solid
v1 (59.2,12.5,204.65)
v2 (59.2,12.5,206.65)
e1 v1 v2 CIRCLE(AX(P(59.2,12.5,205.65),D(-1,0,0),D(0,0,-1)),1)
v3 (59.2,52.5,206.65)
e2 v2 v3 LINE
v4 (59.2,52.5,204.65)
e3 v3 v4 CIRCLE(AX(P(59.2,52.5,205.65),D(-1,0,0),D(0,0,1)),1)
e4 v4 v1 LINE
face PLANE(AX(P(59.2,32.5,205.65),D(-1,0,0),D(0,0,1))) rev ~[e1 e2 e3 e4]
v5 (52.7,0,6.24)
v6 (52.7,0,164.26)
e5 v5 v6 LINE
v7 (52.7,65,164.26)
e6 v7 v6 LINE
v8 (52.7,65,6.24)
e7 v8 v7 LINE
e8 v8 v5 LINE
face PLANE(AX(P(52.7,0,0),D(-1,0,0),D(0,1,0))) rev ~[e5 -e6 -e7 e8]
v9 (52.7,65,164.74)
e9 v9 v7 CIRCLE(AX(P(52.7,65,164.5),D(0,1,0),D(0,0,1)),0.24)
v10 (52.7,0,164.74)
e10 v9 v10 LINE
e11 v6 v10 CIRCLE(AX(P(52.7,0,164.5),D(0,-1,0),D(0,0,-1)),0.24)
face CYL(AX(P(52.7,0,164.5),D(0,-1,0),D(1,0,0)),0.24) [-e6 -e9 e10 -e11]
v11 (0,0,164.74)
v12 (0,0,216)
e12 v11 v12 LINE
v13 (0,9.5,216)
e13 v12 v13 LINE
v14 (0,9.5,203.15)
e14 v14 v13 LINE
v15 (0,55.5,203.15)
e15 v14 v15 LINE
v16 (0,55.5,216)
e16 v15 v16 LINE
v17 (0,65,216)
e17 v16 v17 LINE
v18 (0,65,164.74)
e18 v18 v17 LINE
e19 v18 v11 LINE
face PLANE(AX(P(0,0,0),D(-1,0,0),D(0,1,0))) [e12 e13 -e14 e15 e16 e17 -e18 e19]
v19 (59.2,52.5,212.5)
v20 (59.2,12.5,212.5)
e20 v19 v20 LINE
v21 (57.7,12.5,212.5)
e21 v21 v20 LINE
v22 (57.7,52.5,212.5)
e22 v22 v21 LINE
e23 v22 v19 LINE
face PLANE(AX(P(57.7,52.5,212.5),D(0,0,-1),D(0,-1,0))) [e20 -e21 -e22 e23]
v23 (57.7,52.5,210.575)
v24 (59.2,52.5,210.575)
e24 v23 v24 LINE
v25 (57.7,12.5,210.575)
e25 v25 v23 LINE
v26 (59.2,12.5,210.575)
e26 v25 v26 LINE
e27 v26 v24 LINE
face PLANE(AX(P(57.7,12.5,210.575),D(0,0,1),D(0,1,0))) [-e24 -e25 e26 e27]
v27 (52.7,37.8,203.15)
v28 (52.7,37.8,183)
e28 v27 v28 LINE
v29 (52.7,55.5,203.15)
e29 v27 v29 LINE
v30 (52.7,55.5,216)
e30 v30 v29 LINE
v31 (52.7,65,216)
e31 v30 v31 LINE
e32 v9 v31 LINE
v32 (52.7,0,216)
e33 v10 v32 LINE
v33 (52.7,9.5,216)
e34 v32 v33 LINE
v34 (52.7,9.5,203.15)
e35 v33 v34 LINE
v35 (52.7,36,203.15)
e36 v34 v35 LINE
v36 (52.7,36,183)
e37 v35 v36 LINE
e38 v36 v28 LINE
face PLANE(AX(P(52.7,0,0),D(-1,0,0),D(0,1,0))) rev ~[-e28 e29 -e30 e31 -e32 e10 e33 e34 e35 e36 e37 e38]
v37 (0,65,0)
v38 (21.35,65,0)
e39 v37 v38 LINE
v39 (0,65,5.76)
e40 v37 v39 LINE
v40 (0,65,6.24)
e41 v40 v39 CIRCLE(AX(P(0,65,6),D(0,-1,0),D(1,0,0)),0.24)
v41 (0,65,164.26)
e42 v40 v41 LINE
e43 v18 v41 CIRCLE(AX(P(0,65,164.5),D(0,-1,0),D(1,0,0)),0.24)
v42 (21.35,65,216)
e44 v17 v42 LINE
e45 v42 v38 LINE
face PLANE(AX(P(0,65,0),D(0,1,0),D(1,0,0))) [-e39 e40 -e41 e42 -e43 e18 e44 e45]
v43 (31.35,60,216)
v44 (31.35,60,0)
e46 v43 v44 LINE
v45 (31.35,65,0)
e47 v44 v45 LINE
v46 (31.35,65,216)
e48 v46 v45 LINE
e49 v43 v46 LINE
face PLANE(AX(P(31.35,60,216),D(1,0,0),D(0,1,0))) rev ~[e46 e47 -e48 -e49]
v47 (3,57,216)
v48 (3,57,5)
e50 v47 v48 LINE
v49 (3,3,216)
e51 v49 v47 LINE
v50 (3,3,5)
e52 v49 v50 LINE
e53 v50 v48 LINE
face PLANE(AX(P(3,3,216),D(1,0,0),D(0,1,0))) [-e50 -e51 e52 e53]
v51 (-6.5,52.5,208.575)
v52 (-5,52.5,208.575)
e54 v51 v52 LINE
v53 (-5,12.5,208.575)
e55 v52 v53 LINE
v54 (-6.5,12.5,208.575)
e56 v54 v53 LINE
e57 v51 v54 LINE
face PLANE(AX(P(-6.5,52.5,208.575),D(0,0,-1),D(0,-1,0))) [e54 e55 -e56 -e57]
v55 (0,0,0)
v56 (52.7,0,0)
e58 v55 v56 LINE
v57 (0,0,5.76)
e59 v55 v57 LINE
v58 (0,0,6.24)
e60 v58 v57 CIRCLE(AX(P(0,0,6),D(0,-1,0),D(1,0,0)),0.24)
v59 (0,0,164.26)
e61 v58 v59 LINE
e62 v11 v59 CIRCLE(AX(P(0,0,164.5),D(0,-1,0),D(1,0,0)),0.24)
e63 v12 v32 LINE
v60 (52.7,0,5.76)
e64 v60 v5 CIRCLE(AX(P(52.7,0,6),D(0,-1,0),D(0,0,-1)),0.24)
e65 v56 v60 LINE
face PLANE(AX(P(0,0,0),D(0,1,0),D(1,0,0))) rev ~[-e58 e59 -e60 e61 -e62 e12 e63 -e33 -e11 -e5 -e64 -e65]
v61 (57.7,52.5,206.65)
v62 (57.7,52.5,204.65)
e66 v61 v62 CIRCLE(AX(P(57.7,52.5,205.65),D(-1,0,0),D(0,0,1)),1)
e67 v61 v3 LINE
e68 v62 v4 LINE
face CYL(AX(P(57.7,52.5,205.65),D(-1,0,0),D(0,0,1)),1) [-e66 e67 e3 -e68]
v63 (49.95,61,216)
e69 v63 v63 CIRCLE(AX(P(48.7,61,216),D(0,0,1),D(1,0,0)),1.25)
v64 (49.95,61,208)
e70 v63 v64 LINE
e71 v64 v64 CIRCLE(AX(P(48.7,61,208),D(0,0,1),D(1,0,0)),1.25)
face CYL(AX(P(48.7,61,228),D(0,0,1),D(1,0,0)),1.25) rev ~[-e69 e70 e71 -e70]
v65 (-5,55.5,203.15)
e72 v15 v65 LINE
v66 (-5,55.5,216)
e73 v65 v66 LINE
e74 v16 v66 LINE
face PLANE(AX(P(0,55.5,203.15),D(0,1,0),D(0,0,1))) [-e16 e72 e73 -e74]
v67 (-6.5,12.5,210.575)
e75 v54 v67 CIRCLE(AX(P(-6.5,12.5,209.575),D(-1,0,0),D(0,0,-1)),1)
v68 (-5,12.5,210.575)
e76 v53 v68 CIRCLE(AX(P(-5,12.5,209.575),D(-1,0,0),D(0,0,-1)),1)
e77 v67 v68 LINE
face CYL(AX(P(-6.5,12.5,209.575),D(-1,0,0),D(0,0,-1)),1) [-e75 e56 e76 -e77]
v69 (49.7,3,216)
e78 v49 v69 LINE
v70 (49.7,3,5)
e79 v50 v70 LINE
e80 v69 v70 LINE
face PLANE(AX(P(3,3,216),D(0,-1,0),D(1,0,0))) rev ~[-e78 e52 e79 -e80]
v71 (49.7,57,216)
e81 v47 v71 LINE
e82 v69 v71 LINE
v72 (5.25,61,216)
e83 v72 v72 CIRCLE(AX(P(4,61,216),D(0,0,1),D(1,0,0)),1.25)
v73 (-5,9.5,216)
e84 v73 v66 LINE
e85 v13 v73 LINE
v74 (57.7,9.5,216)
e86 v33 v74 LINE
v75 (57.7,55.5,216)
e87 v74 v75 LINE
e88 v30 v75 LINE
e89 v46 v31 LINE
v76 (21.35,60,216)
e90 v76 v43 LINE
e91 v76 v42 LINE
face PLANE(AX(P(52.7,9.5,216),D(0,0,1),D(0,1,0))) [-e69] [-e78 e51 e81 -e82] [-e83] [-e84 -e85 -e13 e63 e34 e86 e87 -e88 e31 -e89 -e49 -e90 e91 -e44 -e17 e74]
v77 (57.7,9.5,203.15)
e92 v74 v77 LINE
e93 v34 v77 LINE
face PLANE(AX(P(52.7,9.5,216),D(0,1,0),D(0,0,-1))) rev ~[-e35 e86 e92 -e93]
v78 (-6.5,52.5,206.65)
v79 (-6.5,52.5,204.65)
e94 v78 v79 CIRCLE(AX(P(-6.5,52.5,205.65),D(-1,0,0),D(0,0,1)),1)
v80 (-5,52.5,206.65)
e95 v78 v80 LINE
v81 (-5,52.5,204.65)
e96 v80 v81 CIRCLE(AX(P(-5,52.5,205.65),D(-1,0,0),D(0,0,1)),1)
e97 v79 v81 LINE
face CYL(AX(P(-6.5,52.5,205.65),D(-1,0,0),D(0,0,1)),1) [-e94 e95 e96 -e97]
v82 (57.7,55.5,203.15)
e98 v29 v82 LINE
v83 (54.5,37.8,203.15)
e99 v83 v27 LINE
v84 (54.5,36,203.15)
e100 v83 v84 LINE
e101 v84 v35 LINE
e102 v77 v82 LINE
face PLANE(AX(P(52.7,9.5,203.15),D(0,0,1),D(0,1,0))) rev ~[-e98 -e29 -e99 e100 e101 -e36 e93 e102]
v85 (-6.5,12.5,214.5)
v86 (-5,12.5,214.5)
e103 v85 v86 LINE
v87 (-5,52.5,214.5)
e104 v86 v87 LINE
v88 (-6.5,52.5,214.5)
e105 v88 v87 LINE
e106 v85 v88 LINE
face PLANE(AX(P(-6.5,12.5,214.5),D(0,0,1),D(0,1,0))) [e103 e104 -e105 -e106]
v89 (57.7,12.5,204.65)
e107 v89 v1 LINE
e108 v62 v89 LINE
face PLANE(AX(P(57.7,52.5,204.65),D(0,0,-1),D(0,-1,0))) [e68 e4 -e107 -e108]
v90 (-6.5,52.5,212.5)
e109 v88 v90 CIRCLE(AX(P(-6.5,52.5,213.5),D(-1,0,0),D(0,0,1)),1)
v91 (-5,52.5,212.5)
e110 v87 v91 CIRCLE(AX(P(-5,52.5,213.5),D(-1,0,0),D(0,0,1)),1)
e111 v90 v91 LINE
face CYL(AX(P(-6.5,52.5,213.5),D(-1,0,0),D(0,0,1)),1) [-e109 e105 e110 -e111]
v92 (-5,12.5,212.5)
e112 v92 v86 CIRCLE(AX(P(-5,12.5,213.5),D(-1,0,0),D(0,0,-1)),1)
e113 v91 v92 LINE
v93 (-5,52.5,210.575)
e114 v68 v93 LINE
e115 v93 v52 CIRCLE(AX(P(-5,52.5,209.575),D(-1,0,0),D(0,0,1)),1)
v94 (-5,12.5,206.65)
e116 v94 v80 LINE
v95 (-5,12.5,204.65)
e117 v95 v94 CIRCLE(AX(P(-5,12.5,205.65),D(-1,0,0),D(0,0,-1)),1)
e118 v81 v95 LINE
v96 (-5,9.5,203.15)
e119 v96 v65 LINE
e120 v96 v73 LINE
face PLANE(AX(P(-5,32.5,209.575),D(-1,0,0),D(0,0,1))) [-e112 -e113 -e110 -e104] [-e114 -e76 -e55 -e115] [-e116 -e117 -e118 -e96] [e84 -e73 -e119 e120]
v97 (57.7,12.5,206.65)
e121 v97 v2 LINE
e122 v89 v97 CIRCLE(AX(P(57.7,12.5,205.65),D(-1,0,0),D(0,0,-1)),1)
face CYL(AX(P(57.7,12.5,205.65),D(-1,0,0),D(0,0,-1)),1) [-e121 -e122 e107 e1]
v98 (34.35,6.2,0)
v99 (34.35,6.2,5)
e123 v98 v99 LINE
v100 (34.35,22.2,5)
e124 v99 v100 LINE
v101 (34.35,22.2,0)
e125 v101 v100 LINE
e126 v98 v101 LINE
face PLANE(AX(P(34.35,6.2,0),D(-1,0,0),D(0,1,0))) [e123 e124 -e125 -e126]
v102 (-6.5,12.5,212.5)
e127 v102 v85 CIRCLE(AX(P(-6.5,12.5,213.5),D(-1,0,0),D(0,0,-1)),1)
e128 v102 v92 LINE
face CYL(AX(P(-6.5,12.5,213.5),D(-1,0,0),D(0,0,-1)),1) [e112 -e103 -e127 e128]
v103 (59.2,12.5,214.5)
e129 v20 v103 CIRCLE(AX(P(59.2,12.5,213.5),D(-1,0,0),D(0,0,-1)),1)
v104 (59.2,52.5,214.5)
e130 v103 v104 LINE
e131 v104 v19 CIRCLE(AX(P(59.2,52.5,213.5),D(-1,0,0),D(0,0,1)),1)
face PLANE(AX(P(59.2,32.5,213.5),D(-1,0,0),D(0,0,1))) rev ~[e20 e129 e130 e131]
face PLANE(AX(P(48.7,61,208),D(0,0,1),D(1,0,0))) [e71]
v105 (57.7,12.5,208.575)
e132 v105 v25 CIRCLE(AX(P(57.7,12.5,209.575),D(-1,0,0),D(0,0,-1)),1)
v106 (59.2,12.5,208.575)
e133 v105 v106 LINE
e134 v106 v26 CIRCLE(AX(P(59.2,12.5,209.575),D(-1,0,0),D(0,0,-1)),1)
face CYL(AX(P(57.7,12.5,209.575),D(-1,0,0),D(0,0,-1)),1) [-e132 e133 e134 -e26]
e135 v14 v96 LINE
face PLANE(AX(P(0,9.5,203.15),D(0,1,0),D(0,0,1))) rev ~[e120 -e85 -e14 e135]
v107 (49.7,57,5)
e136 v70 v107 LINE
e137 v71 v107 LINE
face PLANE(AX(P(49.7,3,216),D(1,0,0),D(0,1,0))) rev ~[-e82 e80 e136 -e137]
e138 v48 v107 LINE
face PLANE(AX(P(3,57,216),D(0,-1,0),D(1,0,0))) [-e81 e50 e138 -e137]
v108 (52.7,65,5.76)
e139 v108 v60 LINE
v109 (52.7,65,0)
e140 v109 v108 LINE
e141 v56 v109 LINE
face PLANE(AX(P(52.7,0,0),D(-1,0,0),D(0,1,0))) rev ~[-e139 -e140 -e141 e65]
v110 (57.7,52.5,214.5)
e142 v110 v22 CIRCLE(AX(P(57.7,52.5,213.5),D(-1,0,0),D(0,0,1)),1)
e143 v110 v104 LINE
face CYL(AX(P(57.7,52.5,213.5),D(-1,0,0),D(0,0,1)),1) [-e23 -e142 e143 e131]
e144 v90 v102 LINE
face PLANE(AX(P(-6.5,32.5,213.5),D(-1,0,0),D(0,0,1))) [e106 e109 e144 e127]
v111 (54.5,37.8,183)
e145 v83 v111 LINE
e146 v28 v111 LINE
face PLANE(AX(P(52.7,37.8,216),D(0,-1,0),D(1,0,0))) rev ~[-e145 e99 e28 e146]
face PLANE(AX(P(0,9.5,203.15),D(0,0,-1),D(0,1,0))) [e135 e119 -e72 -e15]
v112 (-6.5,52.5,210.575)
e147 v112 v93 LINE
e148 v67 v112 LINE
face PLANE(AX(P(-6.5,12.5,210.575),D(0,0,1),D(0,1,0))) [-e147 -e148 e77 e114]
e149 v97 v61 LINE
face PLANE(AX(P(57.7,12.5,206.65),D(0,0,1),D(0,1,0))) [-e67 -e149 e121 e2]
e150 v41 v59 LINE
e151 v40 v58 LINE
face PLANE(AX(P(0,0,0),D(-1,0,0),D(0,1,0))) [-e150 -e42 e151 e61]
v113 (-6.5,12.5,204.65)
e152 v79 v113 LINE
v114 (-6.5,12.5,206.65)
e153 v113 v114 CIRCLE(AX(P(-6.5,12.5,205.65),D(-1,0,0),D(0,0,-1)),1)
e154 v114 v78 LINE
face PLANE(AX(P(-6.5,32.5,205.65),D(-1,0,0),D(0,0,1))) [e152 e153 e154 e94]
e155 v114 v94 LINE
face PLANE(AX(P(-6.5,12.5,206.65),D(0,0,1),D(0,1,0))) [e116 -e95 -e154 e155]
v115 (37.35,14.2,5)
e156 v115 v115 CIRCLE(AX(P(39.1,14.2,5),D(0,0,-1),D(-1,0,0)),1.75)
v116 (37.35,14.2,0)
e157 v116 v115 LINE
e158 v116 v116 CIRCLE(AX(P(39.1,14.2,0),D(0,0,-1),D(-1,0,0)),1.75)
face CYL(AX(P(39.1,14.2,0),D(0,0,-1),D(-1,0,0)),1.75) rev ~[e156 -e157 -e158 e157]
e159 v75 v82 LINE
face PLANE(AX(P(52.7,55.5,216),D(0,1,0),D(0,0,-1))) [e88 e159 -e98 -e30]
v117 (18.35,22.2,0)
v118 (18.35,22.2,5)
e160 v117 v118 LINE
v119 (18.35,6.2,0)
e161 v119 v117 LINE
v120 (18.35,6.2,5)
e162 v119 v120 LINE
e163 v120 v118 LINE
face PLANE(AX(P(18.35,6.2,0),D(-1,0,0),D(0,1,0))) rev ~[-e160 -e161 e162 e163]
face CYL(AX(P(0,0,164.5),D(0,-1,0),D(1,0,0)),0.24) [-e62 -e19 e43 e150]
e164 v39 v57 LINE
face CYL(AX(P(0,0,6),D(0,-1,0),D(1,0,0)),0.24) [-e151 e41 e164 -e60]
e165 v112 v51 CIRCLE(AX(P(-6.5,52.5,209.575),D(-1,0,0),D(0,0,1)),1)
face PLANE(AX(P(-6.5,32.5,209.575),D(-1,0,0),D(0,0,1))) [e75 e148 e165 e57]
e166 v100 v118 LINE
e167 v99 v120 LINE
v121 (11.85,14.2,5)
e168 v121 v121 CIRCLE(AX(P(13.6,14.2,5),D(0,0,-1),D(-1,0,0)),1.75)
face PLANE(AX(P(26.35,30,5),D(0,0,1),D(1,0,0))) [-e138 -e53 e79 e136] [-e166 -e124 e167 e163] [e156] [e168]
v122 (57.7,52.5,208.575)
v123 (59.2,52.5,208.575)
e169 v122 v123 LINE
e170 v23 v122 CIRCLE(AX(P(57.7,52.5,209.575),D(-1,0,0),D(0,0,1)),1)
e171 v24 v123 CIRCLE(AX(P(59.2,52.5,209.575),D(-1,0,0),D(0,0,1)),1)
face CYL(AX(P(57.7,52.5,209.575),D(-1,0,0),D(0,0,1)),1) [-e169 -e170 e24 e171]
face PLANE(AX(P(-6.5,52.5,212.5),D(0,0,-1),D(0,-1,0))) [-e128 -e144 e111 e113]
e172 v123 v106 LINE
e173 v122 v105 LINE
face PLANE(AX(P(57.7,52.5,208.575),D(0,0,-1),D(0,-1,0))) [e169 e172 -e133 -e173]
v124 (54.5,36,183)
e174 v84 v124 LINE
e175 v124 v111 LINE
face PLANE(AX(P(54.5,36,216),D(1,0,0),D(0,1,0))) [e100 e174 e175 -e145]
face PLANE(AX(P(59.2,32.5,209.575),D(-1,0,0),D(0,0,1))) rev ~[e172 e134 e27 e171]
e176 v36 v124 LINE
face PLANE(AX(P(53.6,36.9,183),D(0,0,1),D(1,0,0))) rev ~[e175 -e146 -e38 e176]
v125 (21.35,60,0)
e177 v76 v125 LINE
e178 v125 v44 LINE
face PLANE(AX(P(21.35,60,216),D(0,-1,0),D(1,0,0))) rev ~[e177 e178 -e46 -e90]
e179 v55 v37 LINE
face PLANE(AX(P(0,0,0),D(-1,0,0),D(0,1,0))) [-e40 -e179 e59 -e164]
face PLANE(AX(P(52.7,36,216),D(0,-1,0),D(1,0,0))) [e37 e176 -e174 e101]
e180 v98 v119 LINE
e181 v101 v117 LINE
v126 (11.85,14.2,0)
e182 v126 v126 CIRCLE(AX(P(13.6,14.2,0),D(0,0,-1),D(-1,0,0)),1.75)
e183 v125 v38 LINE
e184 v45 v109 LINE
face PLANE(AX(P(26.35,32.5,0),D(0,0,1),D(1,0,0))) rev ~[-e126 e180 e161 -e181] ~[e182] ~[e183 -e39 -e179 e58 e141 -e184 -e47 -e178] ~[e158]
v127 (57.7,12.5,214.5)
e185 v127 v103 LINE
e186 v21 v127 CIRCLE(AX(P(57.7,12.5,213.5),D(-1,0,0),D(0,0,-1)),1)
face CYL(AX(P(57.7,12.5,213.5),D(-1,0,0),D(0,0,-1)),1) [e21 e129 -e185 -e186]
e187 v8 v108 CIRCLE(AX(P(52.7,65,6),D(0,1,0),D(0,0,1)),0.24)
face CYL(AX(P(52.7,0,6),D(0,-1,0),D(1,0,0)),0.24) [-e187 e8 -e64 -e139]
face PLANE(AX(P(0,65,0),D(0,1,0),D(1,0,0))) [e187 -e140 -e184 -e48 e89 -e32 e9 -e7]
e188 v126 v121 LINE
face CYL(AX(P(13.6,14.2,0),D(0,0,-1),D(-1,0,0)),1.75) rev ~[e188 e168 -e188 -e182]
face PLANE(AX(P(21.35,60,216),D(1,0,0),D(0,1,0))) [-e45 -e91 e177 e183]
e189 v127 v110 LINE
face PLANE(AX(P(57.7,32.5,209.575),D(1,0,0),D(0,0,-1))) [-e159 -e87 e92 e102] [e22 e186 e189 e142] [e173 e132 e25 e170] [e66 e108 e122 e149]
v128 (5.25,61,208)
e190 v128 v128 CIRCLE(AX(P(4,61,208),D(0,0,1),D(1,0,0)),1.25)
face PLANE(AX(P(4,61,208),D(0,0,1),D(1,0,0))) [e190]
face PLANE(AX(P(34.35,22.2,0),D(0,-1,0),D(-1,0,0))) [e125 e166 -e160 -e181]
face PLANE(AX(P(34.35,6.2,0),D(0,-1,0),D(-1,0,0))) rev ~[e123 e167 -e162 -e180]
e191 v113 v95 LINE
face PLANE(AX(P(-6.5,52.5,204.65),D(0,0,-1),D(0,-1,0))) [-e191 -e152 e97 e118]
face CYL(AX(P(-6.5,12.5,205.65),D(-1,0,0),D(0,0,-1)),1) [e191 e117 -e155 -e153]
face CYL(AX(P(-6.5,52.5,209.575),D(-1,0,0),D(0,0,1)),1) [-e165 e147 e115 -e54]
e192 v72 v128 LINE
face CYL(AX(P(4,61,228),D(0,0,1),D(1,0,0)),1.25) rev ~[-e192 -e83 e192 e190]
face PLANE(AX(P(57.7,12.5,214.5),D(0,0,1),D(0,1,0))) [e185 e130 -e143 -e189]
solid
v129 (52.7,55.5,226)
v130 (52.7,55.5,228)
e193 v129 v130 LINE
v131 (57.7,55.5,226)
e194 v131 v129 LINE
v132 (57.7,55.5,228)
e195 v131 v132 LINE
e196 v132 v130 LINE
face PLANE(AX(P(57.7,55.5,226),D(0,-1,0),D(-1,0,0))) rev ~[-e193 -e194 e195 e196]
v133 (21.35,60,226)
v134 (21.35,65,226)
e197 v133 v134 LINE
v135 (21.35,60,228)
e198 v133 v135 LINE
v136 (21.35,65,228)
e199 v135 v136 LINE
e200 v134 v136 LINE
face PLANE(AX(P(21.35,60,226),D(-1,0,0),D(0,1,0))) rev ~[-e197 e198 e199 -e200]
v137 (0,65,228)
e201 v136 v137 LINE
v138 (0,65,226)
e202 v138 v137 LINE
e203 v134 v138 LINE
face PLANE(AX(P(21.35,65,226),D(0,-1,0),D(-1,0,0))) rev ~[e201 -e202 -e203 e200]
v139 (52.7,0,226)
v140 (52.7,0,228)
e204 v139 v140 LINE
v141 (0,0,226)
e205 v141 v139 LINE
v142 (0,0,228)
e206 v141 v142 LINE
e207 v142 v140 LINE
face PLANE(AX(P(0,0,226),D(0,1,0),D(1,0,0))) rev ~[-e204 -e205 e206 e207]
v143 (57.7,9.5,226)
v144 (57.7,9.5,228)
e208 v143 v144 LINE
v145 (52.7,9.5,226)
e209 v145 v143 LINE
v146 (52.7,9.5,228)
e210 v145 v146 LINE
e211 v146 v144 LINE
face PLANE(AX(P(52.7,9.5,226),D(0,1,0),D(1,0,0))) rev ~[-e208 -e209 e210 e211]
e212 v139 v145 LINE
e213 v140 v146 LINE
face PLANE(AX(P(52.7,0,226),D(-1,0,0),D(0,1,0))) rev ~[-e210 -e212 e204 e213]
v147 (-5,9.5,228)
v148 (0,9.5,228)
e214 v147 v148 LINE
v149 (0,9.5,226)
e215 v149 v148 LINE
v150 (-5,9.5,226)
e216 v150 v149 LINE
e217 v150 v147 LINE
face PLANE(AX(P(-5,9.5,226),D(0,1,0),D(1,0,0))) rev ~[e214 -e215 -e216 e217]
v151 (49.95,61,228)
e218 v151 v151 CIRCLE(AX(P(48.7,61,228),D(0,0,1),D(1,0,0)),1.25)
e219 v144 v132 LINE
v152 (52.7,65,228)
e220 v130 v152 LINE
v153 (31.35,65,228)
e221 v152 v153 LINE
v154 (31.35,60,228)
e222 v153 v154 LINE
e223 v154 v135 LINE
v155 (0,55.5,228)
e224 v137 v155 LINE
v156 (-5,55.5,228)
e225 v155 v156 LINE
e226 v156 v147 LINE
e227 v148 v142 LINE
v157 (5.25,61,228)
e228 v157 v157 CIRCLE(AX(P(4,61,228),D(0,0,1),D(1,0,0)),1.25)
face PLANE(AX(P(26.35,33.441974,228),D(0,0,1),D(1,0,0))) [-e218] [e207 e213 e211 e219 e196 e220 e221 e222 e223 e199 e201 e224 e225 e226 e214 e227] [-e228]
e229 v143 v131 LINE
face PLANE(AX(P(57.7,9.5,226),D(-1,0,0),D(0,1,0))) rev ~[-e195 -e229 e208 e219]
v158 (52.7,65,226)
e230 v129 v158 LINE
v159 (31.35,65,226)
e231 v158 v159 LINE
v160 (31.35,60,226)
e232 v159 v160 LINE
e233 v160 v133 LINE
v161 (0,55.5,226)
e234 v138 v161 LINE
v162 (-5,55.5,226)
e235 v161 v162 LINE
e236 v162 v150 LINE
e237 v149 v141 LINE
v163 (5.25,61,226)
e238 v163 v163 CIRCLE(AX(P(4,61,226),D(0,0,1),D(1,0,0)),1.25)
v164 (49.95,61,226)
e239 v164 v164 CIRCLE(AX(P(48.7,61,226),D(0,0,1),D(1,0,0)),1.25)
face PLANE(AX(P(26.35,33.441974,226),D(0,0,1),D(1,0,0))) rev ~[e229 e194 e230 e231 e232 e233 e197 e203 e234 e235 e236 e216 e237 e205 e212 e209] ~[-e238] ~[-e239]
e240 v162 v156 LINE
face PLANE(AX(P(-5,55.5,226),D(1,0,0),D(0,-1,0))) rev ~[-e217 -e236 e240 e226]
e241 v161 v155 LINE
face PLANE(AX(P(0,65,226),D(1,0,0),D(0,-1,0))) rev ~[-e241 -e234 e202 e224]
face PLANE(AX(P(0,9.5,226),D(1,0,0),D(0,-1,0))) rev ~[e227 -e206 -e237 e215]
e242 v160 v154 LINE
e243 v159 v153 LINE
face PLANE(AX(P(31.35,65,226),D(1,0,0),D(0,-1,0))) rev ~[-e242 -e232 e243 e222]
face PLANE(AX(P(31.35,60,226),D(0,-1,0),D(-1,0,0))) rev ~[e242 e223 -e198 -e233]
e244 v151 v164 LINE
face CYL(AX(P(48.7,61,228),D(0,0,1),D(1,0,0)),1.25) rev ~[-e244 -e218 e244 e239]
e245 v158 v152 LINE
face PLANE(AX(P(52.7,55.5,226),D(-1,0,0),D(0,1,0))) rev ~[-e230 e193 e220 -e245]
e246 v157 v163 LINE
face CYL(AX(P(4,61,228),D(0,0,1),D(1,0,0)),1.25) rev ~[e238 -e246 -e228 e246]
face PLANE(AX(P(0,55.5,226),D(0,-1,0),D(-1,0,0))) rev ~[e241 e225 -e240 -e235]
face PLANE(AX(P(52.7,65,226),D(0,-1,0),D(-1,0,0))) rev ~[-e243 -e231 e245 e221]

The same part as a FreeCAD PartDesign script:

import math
import FreeCAD as App
import Part
import Sketcher
Q = App.Units.Quantity


def add_polygon(sketch, points):
    """Adds a closed chain of lines whose ends are joined by coincident constraints."""
    first, n = sketch.GeometryCount, len(points)
    for a, b in zip(points, points[1:] + points[:1]):
        sketch.addGeometry(Part.LineSegment(App.Vector(*a, 0), App.Vector(*b, 0)), False)
    for i in range(n):
        sketch.addConstraint(Sketcher.Constraint("Coincident", first + i, 2, first + (i + 1) % n, 1))

doc = App.newDocument("Part")
body = doc.addObject("PartDesign::Body", "Body")

sketch1 = body.newObject("Sketcher::SketchObject", "Sketch")
sketch1.AttachmentSupport = (doc.getObject("XY_Plane"), [""])
sketch1.MapMode = "FlatFace"
add_polygon(sketch1, [(0, 65), (0, 0), (53, 0), (53, 65)])
sketch1.addConstraint(Sketcher.Constraint("Vertical", 0))
sketch1.addConstraint(Sketcher.Constraint("Horizontal", 1))
sketch1.addConstraint(Sketcher.Constraint("Vertical", 2))
sketch1.addConstraint(Sketcher.Constraint("Horizontal", 3))
sketch1.addConstraint(Sketcher.Constraint("Coincident", 0, 2, -1, 1))
sketch1.addConstraint(Sketcher.Constraint("DistanceY", 0, 2, 0, 1, Q("65 mm")))
sketch1.addConstraint(Sketcher.Constraint("DistanceX", 1, 1, 1, 2, Q("52.7 mm")))
pad1 = body.newObject("PartDesign::Pad", "Pad")
pad1.Profile = sketch1
pad1.Length = 216

sketch2 = body.newObject("Sketcher::SketchObject", "Sketch001")
sketch2.AttachmentSupport = (doc.getObject("XY_Plane"), [""])
sketch2.MapMode = "FlatFace"
sketch2.AttachmentOffset = App.Placement(App.Vector(0, 0, 216), App.Rotation())
add_polygon(sketch2, [(21, 65), (21, 60), (31, 60), (31, 65)])
sketch2.addConstraint(Sketcher.Constraint("Vertical", 0))
sketch2.addConstraint(Sketcher.Constraint("Horizontal", 1))
sketch2.addConstraint(Sketcher.Constraint("Vertical", 2))
sketch2.addConstraint(Sketcher.Constraint("Horizontal", 3))
sketch2.addConstraint(Sketcher.Constraint("DistanceX", 1, 1, 1, 2, Q("10 mm")))
sketch2.addConstraint(Sketcher.Constraint("DistanceY", 0, 2, 0, 1, Q("5 mm")))
sketch2.addConstraint(Sketcher.Constraint("DistanceY", -1, 1, 0, 2, Q("60 mm")))
sketch2.addConstraint(Sketcher.Constraint("DistanceX", -1, 1, 0, 2, Q("21.35 mm")))
pocket1 = body.newObject("PartDesign::Pocket", "Pocket")
pocket1.Profile = sketch2
pocket1.Type = "ThroughAll"

sketch3 = body.newObject("Sketcher::SketchObject", "Sketch002")
sketch3.AttachmentSupport = (doc.getObject("XY_Plane"), [""])
sketch3.MapMode = "FlatFace"
sketch3.AttachmentOffset = App.Placement(App.Vector(0, 0, 216), App.Rotation())
add_polygon(sketch3, [(3, 57), (3, 3), (50, 3), (50, 57)])
sketch3.addConstraint(Sketcher.Constraint("Vertical", 0))
sketch3.addConstraint(Sketcher.Constraint("Horizontal", 1))
sketch3.addConstraint(Sketcher.Constraint("Vertical", 2))
sketch3.addConstraint(Sketcher.Constraint("Horizontal", 3))
sketch3.addConstraint(Sketcher.Constraint("DistanceY", 0, 2, 0, 1, Q("54 mm")))
sketch3.addConstraint(Sketcher.Constraint("DistanceX", 1, 1, 1, 2, Q("46.7 mm")))
sketch3.addConstraint(Sketcher.Constraint("DistanceX", -1, 1, 0, 2, Q("3 mm")))
sketch3.addConstraint(Sketcher.Constraint("DistanceY", -1, 1, 0, 2, Q("3 mm")))
pocket2 = body.newObject("PartDesign::Pocket", "Pocket001")
pocket2.Profile = sketch3
pocket2.Length = 211

sketch4 = body.newObject("Sketcher::SketchObject", "Sketch003")
sketch4.AttachmentSupport = (doc.getObject("XY_Plane"), [""])
sketch4.MapMode = "FlatFace"
sketch4.addGeometry(Part.Circle(App.Vector(13.6, 14.2, 0), App.Vector(0, 0, 1), 1.8), False)
sketch4.addGeometry(Part.Circle(App.Vector(39.1, 14.2, 0), App.Vector(0, 0, 1), 1.8), False)
add_polygon(sketch4, [(34.4, 22.2), (34.4, 6.2), (18.4, 6.2), (18.4, 22.2)])
sketch4.addConstraint(Sketcher.Constraint("Vertical", 2))
sketch4.addConstraint(Sketcher.Constraint("Horizontal", 3))
sketch4.addConstraint(Sketcher.Constraint("Vertical", 4))
sketch4.addConstraint(Sketcher.Constraint("Horizontal", 5))
sketch4.addConstraint(Sketcher.Constraint("Equal", 0, 1))
sketch4.addConstraint(Sketcher.Constraint("Horizontal", 0, 3, 1, 3))
sketch4.addConstraint(Sketcher.Constraint("Equal", 5, 2))
sketch4.addConstraint(Sketcher.Constraint("Diameter", 0, Q("3.5 mm")))
sketch4.addConstraint(Sketcher.Constraint("DistanceX", 3, 2, 3, 1, Q("16 mm")))
sketch4.addConstraint(Sketcher.Constraint("DistanceY", 2, 2, 1, 3, Q("8 mm")))
sketch4.addConstraint(Sketcher.Constraint("DistanceX", -1, 1, 0, 3, Q("13.6 mm")))
sketch4.addConstraint(Sketcher.Constraint("DistanceY", -1, 1, 0, 3, Q("14.2 mm")))
sketch4.addConstraint(Sketcher.Constraint("DistanceX", -1, 1, 1, 3, Q("39.1 mm")))
sketch4.addConstraint(Sketcher.Constraint("DistanceX", -1, 1, 2, 2, Q("34.35 mm")))
pocket3 = body.newObject("PartDesign::Pocket", "Pocket002")
pocket3.Profile = sketch4
pocket3.Length = 5
pocket3.Reversed = True

sketch5 = body.newObject("Sketcher::SketchObject", "Sketch004")
sketch5.AttachmentSupport = (doc.getObject("XY_Plane"), [""])
sketch5.MapMode = "FlatFace"
sketch5.AttachmentOffset = App.Placement(App.Vector(0, 0, 216), App.Rotation())
add_polygon(sketch5, [(52.7, 37.8), (52.7, 36), (54.5, 36), (54.5, 37.8)])
sketch5.addConstraint(Sketcher.Constraint("Vertical", 0))
sketch5.addConstraint(Sketcher.Constraint("Horizontal", 1))
sketch5.addConstraint(Sketcher.Constraint("Vertical", 2))
sketch5.addConstraint(Sketcher.Constraint("Horizontal", 3))
sketch5.addConstraint(Sketcher.Constraint("Equal", 3, 0))
sketch5.addConstraint(Sketcher.Constraint("DistanceX", 1, 1, 1, 2, Q("1.8 mm")))
sketch5.addConstraint(Sketcher.Constraint("DistanceY", -1, 1, 0, 2, Q("36 mm")))
sketch5.addConstraint(Sketcher.Constraint("DistanceX", -1, 1, 0, 2, Q("52.7 mm")))
pad2 = body.newObject("PartDesign::Pad", "Pad001")
pad2.Profile = sketch5
pad2.Length = 33
pad2.Reversed = True

sketch6 = body.newObject("Sketcher::SketchObject", "Sketch005")
sketch6.AttachmentSupport = (doc.getObject("YZ_Plane"), [""])
sketch6.MapMode = "FlatFace"
add_polygon(sketch6, [(56, 203), (10, 203), (10, 216), (56, 216)])
sketch6.addConstraint(Sketcher.Constraint("Horizontal", 0))
sketch6.addConstraint(Sketcher.Constraint("Vertical", 1))
sketch6.addConstraint(Sketcher.Constraint("Horizontal", 2))
sketch6.addConstraint(Sketcher.Constraint("Vertical", 3))
sketch6.addConstraint(Sketcher.Constraint("DistanceX", 0, 2, 0, 1, Q("46 mm")))
sketch6.addConstraint(Sketcher.Constraint("DistanceY", -1, 1, 1, 2, Q("216 mm")))
sketch6.addConstraint(Sketcher.Constraint("DistanceY", 1, 1, 1, 2, Q("12.85 mm")))
sketch6.addConstraint(Sketcher.Constraint("DistanceX", -1, 1, 0, 2, Q("9.5 mm")))
pad3 = body.newObject("PartDesign::Pad", "Pad002")
pad3.Profile = sketch6
pad3.Length = 5
pad3.Reversed = True

sketch7 = body.newObject("Sketcher::SketchObject", "Sketch006")
sketch7.AttachmentSupport = (doc.getObject("YZ_Plane"), [""])
sketch7.MapMode = "FlatFace"
sketch7.AttachmentOffset = App.Placement(App.Vector(0, 0, 52.7), App.Rotation())
add_polygon(sketch7, [(56, 216), (10, 216), (10, 203), (56, 203)])
sketch7.addConstraint(Sketcher.Constraint("Horizontal", 0))
sketch7.addConstraint(Sketcher.Constraint("Vertical", 1))
sketch7.addConstraint(Sketcher.Constraint("Horizontal", 2))
sketch7.addConstraint(Sketcher.Constraint("Vertical", 3))
sketch7.addConstraint(Sketcher.Constraint("DistanceX", 0, 2, 0, 1, Q("46 mm")))
sketch7.addConstraint(Sketcher.Constraint("DistanceY", -1, 1, 0, 2, Q("216 mm")))
sketch7.addConstraint(Sketcher.Constraint("DistanceY", 1, 2, 1, 1, Q("12.85 mm")))
sketch7.addConstraint(Sketcher.Constraint("DistanceX", -1, 1, 0, 2, Q("9.5 mm")))
pad4 = body.newObject("PartDesign::Pad", "Pad003")
pad4.Profile = sketch7
pad4.Length = 5

sketch8 = body.newObject("Sketcher::SketchObject", "Sketch007")
sketch8.AttachmentSupport = (doc.getObject("YZ_Plane"), [""])
sketch8.MapMode = "FlatFace"
sketch8.AttachmentOffset = App.Placement(App.Vector(0, 0, 57.7), App.Rotation())
sketch8.addGeometry(Part.LineSegment(App.Vector(52.5, 214.5, 0), App.Vector(12.5, 214.5, 0)), False)
sketch8.addGeometry(Part.ArcOfCircle(Part.Circle(App.Vector(12.5, 213.5, 0), App.Vector(0, 0, 1), 1), math.radians(90), math.radians(270)), False)
sketch8.addGeometry(Part.LineSegment(App.Vector(12.5, 212.5, 0), App.Vector(52.5, 212.5, 0)), False)
sketch8.addGeometry(Part.ArcOfCircle(Part.Circle(App.Vector(52.5, 213.5, 0), App.Vector(0, 0, 1), 1), math.radians(-90), math.radians(90)), False)
sketch8.addGeometry(Part.LineSegment(App.Vector(52.5, 210.6, 0), App.Vector(12.5, 210.6, 0)), False)
sketch8.addGeometry(Part.ArcOfCircle(Part.Circle(App.Vector(12.5, 209.6, 0), App.Vector(0, 0, 1), 1), math.radians(90), math.radians(270)), False)
sketch8.addGeometry(Part.LineSegment(App.Vector(12.5, 208.6, 0), App.Vector(52.5, 208.6, 0)), False)
sketch8.addGeometry(Part.ArcOfCircle(Part.Circle(App.Vector(52.5, 209.6, 0), App.Vector(0, 0, 1), 1), math.radians(-90), math.radians(90)), False)
sketch8.addGeometry(Part.LineSegment(App.Vector(52.5, 206.7, 0), App.Vector(12.5, 206.7, 0)), False)
sketch8.addGeometry(Part.ArcOfCircle(Part.Circle(App.Vector(12.5, 205.7, 0), App.Vector(0, 0, 1), 1), math.radians(90), math.radians(270)), False)
sketch8.addGeometry(Part.LineSegment(App.Vector(12.5, 204.7, 0), App.Vector(52.5, 204.7, 0)), False)
sketch8.addGeometry(Part.ArcOfCircle(Part.Circle(App.Vector(52.5, 205.7, 0), App.Vector(0, 0, 1), 1), math.radians(-90), math.radians(90)), False)
sketch8.addConstraint(Sketcher.Constraint("Tangent", 0, 2, 1, 1))
sketch8.addConstraint(Sketcher.Constraint("Tangent", 1, 2, 2, 1))
sketch8.addConstraint(Sketcher.Constraint("Tangent", 2, 2, 3, 1))
sketch8.addConstraint(Sketcher.Constraint("Tangent", 3, 2, 0, 1))
sketch8.addConstraint(Sketcher.Constraint("Tangent", 4, 2, 5, 1))
sketch8.addConstraint(Sketcher.Constraint("Tangent", 5, 2, 6, 1))
sketch8.addConstraint(Sketcher.Constraint("Tangent", 6, 2, 7, 1))
sketch8.addConstraint(Sketcher.Constraint("Tangent", 7, 2, 4, 1))
sketch8.addConstraint(Sketcher.Constraint("Tangent", 8, 2, 9, 1))
sketch8.addConstraint(Sketcher.Constraint("Tangent", 9, 2, 10, 1))
sketch8.addConstraint(Sketcher.Constraint("Tangent", 10, 2, 11, 1))
sketch8.addConstraint(Sketcher.Constraint("Tangent", 11, 2, 8, 1))
sketch8.addConstraint(Sketcher.Constraint("Horizontal", 0))
sketch8.addConstraint(Sketcher.Constraint("Horizontal", 2))
sketch8.addConstraint(Sketcher.Constraint("Horizontal", 4))
sketch8.addConstraint(Sketcher.Constraint("Horizontal", 6))
sketch8.addConstraint(Sketcher.Constraint("Horizontal", 8))
sketch8.addConstraint(Sketcher.Constraint("Horizontal", 10))
sketch8.addConstraint(Sketcher.Constraint("Equal", 3, 5))
sketch8.addConstraint(Sketcher.Constraint("Equal", 7, 9))
sketch8.addConstraint(Sketcher.Constraint("Vertical", 1, 3, 5, 3))
sketch8.addConstraint(Sketcher.Constraint("Vertical", 3, 3, 7, 3))
sketch8.addConstraint(Sketcher.Constraint("Vertical", 5, 3, 9, 3))
sketch8.addConstraint(Sketcher.Constraint("Vertical", 7, 3, 11, 3))
sketch8.addConstraint(Sketcher.Constraint("Radius", 1, Q("1 mm")))
sketch8.addConstraint(Sketcher.Constraint("DistanceX", 0, 2, 0, 1, Q("40 mm")))
sketch8.addConstraint(Sketcher.Constraint("DistanceX", -1, 1, 1, 3, Q("12.5 mm")))
sketch8.addConstraint(Sketcher.Constraint("DistanceY", -1, 1, 1, 3, Q("213.5 mm")))
sketch8.addConstraint(Sketcher.Constraint("DistanceY", -1, 1, 9, 3, Q("205.65 mm")))
sketch8.addConstraint(Sketcher.Constraint("DistanceY", -1, 1, 5, 3, Q("209.575 mm")))
pad5 = body.newObject("PartDesign::Pad", "Pad004")
pad5.Profile = sketch8
pad5.Length = 1.5

sketch9 = body.newObject("Sketcher::SketchObject", "Sketch008")
sketch9.AttachmentSupport = (doc.getObject("YZ_Plane"), [""])
sketch9.MapMode = "FlatFace"
sketch9.AttachmentOffset = App.Placement(App.Vector(0, 0, -6.5), App.Rotation())
sketch9.addGeometry(Part.LineSegment(App.Vector(12.5, 214.5, 0), App.Vector(52.5, 214.5, 0)), False)
sketch9.addGeometry(Part.ArcOfCircle(Part.Circle(App.Vector(52.5, 213.5, 0), App.Vector(0, 0, 1), 1), math.radians(-90), math.radians(90)), False)
sketch9.addGeometry(Part.LineSegment(App.Vector(52.5, 212.5, 0), App.Vector(12.5, 212.5, 0)), False)
sketch9.addGeometry(Part.ArcOfCircle(Part.Circle(App.Vector(12.5, 213.5, 0), App.Vector(0, 0, 1), 1), math.radians(90), math.radians(270)), False)
sketch9.addGeometry(Part.LineSegment(App.Vector(12.5, 206.7, 0), App.Vector(52.5, 206.7, 0)), False)
sketch9.addGeometry(Part.ArcOfCircle(Part.Circle(App.Vector(52.5, 205.7, 0), App.Vector(0, 0, 1), 1), math.radians(-90), math.radians(90)), False)
sketch9.addGeometry(Part.LineSegment(App.Vector(52.5, 204.7, 0), App.Vector(12.5, 204.7, 0)), False)
sketch9.addGeometry(Part.ArcOfCircle(Part.Circle(App.Vector(12.5, 205.7, 0), App.Vector(0, 0, 1), 1), math.radians(90), math.radians(270)), False)
sketch9.addGeometry(Part.LineSegment(App.Vector(12.5, 210.6, 0), App.Vector(52.5, 210.6, 0)), False)
sketch9.addGeometry(Part.ArcOfCircle(Part.Circle(App.Vector(52.5, 209.6, 0), App.Vector(0, 0, 1), 1), math.radians(-90), math.radians(90)), False)
sketch9.addGeometry(Part.LineSegment(App.Vector(52.5, 208.6, 0), App.Vector(12.5, 208.6, 0)), False)
sketch9.addGeometry(Part.ArcOfCircle(Part.Circle(App.Vector(12.5, 209.6, 0), App.Vector(0, 0, 1), 1), math.radians(90), math.radians(270)), False)
sketch9.addConstraint(Sketcher.Constraint("Tangent", 0, 2, 1, 2))
sketch9.addConstraint(Sketcher.Constraint("Tangent", 1, 1, 2, 1))
sketch9.addConstraint(Sketcher.Constraint("Tangent", 2, 2, 3, 2))
sketch9.addConstraint(Sketcher.Constraint("Tangent", 3, 1, 0, 1))
sketch9.addConstraint(Sketcher.Constraint("Tangent", 4, 2, 5, 2))
sketch9.addConstraint(Sketcher.Constraint("Tangent", 5, 1, 6, 1))
sketch9.addConstraint(Sketcher.Constraint("Tangent", 6, 2, 7, 2))
sketch9.addConstraint(Sketcher.Constraint("Tangent", 7, 1, 4, 1))
sketch9.addConstraint(Sketcher.Constraint("Tangent", 8, 2, 9, 2))
sketch9.addConstraint(Sketcher.Constraint("Tangent", 9, 1, 10, 1))
sketch9.addConstraint(Sketcher.Constraint("Tangent", 10, 2, 11, 2))
sketch9.addConstraint(Sketcher.Constraint("Tangent", 11, 1, 8, 1))
sketch9.addConstraint(Sketcher.Constraint("Horizontal", 0))
sketch9.addConstraint(Sketcher.Constraint("Horizontal", 2))
sketch9.addConstraint(Sketcher.Constraint("Horizontal", 4))
sketch9.addConstraint(Sketcher.Constraint("Horizontal", 6))
sketch9.addConstraint(Sketcher.Constraint("Horizontal", 8))
sketch9.addConstraint(Sketcher.Constraint("Horizontal", 10))
sketch9.addConstraint(Sketcher.Constraint("Equal", 3, 5))
sketch9.addConstraint(Sketcher.Constraint("Equal", 7, 9))
sketch9.addConstraint(Sketcher.Constraint("Vertical", 1, 3, 5, 3))
sketch9.addConstraint(Sketcher.Constraint("Vertical", 3, 3, 7, 3))
sketch9.addConstraint(Sketcher.Constraint("Vertical", 5, 3, 9, 3))
sketch9.addConstraint(Sketcher.Constraint("Vertical", 7, 3, 11, 3))
sketch9.addConstraint(Sketcher.Constraint("Radius", 1, Q("1 mm")))
sketch9.addConstraint(Sketcher.Constraint("DistanceX", 0, 1, 0, 2, Q("40 mm")))
sketch9.addConstraint(Sketcher.Constraint("DistanceX", -1, 1, 1, 3, Q("52.5 mm")))
sketch9.addConstraint(Sketcher.Constraint("DistanceY", -1, 1, 1, 3, Q("213.5 mm")))
sketch9.addConstraint(Sketcher.Constraint("DistanceY", -1, 1, 5, 3, Q("205.65 mm")))
sketch9.addConstraint(Sketcher.Constraint("DistanceY", -1, 1, 9, 3, Q("209.575 mm")))
pad6 = body.newObject("PartDesign::Pad", "Pad005")
pad6.Profile = sketch9
pad6.Length = 1.5
body2 = doc.addObject("PartDesign::Body", "Body001")

sketch10 = body2.newObject("Sketcher::SketchObject", "Sketch009")
sketch10.AttachmentSupport = (doc.getObject("XY_Plane001"), [""])
sketch10.MapMode = "FlatFace"
sketch10.AttachmentOffset = App.Placement(App.Vector(0, 0, 226), App.Rotation())
add_polygon(sketch10, [(58, 56), (53, 56), (53, 65), (31, 65), (31, 60), (21, 60), (21, 65), (0, 65), (0, 56), (-5, 56), (-5, 10), (0, 10), (0, 0), (53, 0), (53, 10), (58, 10)])
sketch10.addConstraint(Sketcher.Constraint("Horizontal", 0))
sketch10.addConstraint(Sketcher.Constraint("Vertical", 1))
sketch10.addConstraint(Sketcher.Constraint("Horizontal", 2))
sketch10.addConstraint(Sketcher.Constraint("Vertical", 3))
sketch10.addConstraint(Sketcher.Constraint("Horizontal", 4))
sketch10.addConstraint(Sketcher.Constraint("Vertical", 5))
sketch10.addConstraint(Sketcher.Constraint("Horizontal", 6))
sketch10.addConstraint(Sketcher.Constraint("Vertical", 7))
sketch10.addConstraint(Sketcher.Constraint("Horizontal", 8))
sketch10.addConstraint(Sketcher.Constraint("Vertical", 9))
sketch10.addConstraint(Sketcher.Constraint("Horizontal", 10))
sketch10.addConstraint(Sketcher.Constraint("Vertical", 11))
sketch10.addConstraint(Sketcher.Constraint("Horizontal", 12))
sketch10.addConstraint(Sketcher.Constraint("Vertical", 13))
sketch10.addConstraint(Sketcher.Constraint("Horizontal", 14))
sketch10.addConstraint(Sketcher.Constraint("Vertical", 15))
sketch10.addConstraint(Sketcher.Constraint("Coincident", 11, 2, -1, 1))
sketch10.addConstraint(Sketcher.Constraint("PointOnObject", 6, 2, -2))
sketch10.addConstraint(Sketcher.Constraint("Horizontal", 2, 2, 5, 2))
sketch10.addConstraint(Sketcher.Constraint("Horizontal", 0, 2, 7, 2))
sketch10.addConstraint(Sketcher.Constraint("Horizontal", 10, 2, 13, 2))
sketch10.addConstraint(Sketcher.Constraint("Vertical", 1, 2, 12, 2))
sketch10.addConstraint(Sketcher.Constraint("Equal", 2, 6))
sketch10.addConstraint(Sketcher.Constraint("Equal", 0, 8))
sketch10.addConstraint(Sketcher.Constraint("Equal", 14, 3))
sketch10.addConstraint(Sketcher.Constraint("Equal", 7, 11))
sketch10.addConstraint(Sketcher.Constraint("DistanceX", 0, 2, 0, 1, Q("5 mm")))
sketch10.addConstraint(Sketcher.Constraint("DistanceX", 4, 2, 4, 1, Q("10 mm")))
sketch10.addConstraint(Sketcher.Constraint("DistanceY", 9, 2, 9, 1, Q("46 mm")))
sketch10.addConstraint(Sketcher.Constraint("DistanceX", 12, 1, 12, 2, Q("52.7 mm")))
sketch10.addConstraint(Sketcher.Constraint("DistanceY", 1, 1, 1, 2, Q("9.5 mm")))
pad7 = body2.newObject("PartDesign::Pad", "Pad006")
pad7.Profile = sketch10
pad7.Length = 2
body3 = doc.addObject("PartDesign::Body", "Body002")
body3.AllowCompound = True

sketch11 = body3.newObject("Sketcher::SketchObject", "Sketch010")
sketch11.AttachmentSupport = (doc.getObject("XY_Plane002"), [""])
sketch11.MapMode = "FlatFace"
sketch11.AttachmentOffset = App.Placement(App.Vector(0, 0, 228), App.Rotation())
sketch11.addGeometry(Part.Circle(App.Vector(4, 61, 0), App.Vector(0, 0, 1), 1.2), False)
sketch11.addGeometry(Part.Circle(App.Vector(48.7, 61, 0), App.Vector(0, 0, 1), 1.2), False)
sketch11.addConstraint(Sketcher.Constraint("Equal", 0, 1))
sketch11.addConstraint(Sketcher.Constraint("Horizontal", 0, 3, 1, 3))
sketch11.addConstraint(Sketcher.Constraint("Diameter", 0, Q("2.5 mm")))
sketch11.addConstraint(Sketcher.Constraint("DistanceX", -1, 1, 0, 3, Q("4 mm")))
sketch11.addConstraint(Sketcher.Constraint("DistanceY", -1, 1, 0, 3, Q("61 mm")))
sketch11.addConstraint(Sketcher.Constraint("DistanceX", -1, 1, 1, 3, Q("48.7 mm")))
pad8 = body3.newObject("PartDesign::Pad", "Pad007")
pad8.Profile = sketch11
pad8.Length = 20
pad8.Reversed = True
doc.recompute()

body4 = doc.addObject("PartDesign::Body", "Body003")
body4.BaseFeature = body3
boolean = body.newObject("PartDesign::Boolean", "Boolean")
boolean.Type = "Cut"
boolean.addObjects([body4])
doc.recompute()

sketch12 = body.newObject("Sketcher::SketchObject", "Sketch011")
sketch12.AttachmentSupport = (doc.getObject("XZ_Plane"), [""])
sketch12.MapMode = "FlatFace"
sketch12.addGeometry(Part.Circle(App.Vector(0, 6, 0), App.Vector(0, 0, 1), 0.24), False)
sketch12.addGeometry(Part.Circle(App.Vector(52.7, 6, 0), App.Vector(0, 0, 1), 0.24), False)
sketch12.addGeometry(Part.Circle(App.Vector(0, 164.5, 0), App.Vector(0, 0, 1), 0.24), False)
sketch12.addGeometry(Part.Circle(App.Vector(52.7, 164.5, 0), App.Vector(0, 0, 1), 0.24), False)
sketch12.addConstraint(Sketcher.Constraint("Equal", 0, 1))
sketch12.addConstraint(Sketcher.Constraint("Equal", 1, 2))
sketch12.addConstraint(Sketcher.Constraint("Equal", 2, 3))
sketch12.addConstraint(Sketcher.Constraint("PointOnObject", 0, 3, -2))
sketch12.addConstraint(Sketcher.Constraint("PointOnObject", 2, 3, -2))
sketch12.addConstraint(Sketcher.Constraint("Horizontal", 0, 3, 1, 3))
sketch12.addConstraint(Sketcher.Constraint("Horizontal", 2, 3, 3, 3))
sketch12.addConstraint(Sketcher.Constraint("Vertical", 1, 3, 3, 3))
sketch12.addConstraint(Sketcher.Constraint("Diameter", 0, Q("0.48 mm")))
sketch12.addConstraint(Sketcher.Constraint("DistanceY", -1, 1, 0, 3, Q("6 mm")))
sketch12.addConstraint(Sketcher.Constraint("DistanceX", -1, 1, 1, 3, Q("52.7 mm")))
sketch12.addConstraint(Sketcher.Constraint("DistanceY", -1, 1, 2, 3, Q("164.5 mm")))
pad9 = body.newObject("PartDesign::Pad", "Pad008")
pad9.Profile = sketch12
pad9.Length = 65
pad9.Reversed = True
doc.recompute()

boolean2 = body2.newObject("PartDesign::Boolean", "Boolean001")
boolean2.Type = "Cut"
boolean2.addObjects([body3])

doc.recompute()
